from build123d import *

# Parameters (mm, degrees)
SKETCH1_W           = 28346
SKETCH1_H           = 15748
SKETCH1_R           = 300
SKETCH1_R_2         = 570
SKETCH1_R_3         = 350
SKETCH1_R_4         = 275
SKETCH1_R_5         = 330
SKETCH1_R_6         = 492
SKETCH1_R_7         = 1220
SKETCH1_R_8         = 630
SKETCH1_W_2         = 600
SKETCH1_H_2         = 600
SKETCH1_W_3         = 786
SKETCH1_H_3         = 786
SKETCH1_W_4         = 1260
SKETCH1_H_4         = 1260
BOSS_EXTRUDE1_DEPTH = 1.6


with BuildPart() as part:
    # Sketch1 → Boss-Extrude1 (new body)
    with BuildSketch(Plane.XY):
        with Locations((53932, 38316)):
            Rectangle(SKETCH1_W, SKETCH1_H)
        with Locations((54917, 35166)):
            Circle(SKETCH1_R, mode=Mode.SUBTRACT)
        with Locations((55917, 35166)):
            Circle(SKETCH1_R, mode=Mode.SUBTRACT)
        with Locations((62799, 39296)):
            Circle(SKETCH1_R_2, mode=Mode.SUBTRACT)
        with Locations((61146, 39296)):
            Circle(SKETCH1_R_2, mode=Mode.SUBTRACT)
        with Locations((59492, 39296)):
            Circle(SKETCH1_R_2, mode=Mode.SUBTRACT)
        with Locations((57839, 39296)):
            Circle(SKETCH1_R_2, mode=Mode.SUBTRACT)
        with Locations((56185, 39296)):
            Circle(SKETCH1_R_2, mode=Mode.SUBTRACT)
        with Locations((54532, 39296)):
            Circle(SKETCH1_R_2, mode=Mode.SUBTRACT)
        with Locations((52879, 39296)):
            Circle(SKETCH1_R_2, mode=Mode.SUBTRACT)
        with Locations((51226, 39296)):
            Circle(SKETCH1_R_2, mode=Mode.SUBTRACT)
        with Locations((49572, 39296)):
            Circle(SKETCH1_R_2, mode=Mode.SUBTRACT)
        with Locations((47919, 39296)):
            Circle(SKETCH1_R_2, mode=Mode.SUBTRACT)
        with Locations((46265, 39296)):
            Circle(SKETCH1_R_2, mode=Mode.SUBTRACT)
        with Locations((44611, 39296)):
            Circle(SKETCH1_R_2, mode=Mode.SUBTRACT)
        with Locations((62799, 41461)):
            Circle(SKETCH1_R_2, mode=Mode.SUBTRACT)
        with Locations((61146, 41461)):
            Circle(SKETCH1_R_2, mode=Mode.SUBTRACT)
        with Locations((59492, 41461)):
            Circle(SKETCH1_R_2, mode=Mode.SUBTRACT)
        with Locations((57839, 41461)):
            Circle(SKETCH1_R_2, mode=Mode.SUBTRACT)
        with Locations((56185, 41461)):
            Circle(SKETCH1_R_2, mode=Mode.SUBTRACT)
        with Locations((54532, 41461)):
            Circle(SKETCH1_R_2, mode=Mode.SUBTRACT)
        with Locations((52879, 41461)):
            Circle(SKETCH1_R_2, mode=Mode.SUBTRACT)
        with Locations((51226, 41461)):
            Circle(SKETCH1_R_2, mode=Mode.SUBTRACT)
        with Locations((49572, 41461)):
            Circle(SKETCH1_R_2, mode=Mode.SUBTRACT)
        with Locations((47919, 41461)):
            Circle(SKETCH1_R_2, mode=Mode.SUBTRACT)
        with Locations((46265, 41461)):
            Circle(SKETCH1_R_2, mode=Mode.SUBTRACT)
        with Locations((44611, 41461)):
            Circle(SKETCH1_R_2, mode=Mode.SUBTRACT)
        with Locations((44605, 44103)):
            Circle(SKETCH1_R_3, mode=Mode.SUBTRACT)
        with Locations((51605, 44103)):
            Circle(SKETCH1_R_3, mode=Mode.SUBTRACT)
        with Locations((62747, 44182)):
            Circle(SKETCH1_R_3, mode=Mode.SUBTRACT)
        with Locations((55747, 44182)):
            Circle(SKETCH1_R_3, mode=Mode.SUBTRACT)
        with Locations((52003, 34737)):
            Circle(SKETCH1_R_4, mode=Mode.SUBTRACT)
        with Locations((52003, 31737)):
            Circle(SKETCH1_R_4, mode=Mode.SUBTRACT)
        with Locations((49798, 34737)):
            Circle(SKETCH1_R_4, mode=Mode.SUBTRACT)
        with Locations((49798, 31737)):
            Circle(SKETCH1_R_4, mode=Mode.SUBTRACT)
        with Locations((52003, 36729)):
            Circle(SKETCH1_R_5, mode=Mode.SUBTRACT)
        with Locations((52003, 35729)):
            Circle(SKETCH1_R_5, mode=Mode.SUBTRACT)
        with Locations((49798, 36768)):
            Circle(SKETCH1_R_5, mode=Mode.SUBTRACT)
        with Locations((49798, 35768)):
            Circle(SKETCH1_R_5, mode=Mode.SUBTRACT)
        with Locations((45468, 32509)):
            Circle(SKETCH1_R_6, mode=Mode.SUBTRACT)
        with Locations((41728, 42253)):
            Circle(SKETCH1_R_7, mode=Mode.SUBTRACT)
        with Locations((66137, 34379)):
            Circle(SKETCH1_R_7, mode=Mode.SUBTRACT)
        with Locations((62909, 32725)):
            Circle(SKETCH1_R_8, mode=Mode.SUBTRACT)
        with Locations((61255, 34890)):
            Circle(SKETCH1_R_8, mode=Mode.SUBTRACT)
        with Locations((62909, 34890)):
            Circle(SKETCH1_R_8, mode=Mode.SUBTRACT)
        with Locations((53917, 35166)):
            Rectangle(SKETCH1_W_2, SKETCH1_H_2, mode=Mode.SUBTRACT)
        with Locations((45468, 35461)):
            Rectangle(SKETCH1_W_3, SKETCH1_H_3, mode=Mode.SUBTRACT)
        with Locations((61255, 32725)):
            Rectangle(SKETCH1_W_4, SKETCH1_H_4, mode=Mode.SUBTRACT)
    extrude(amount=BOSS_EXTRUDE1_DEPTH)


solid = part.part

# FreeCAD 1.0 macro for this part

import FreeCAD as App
import Part
import Sketcher
from FreeCAD import Vector


def add_polygon(sketch, points):
    """Adds a closed chain of lines whose ends are joined by coincident constraints."""
    first, n = sketch.GeometryCount, len(points)
    for a, b in zip(points, points[1:] + points[:1]):
        sketch.addGeometry(Part.LineSegment(App.Vector(*a, 0), App.Vector(*b, 0)), False)
    for i in range(n):
        sketch.addConstraint(Sketcher.Constraint("Coincident", first + i, 2, first + (i + 1) % n, 1))

doc = App.newDocument("Part")
params = doc.addObject("Spreadsheet::Sheet", "Params")
for row, (alias, value) in enumerate([
    ("sketch1_diameter", "984 mm"),
    ("sketch1_diameter2", "550 mm"),
    ("sketch1_diameter3", "660 mm"),
    ("sketch1_diameter4", "1260 mm"),
    ("sketch1_diameter5", "2440 mm"),
    ("pad1_length", "1.6 mm"),
], start=1):
    params.set(f"A{row}", alias)
    params.set(f"B{row}", "=" + value)
    params.setAlias(f"B{row}", alias)

body = doc.addObject("PartDesign::Body", "Body")

sketch1 = body.newObject("Sketcher::SketchObject", "Sketch")
sketch1.AttachmentSupport = (doc.getObject("XY_Plane"), [""])
sketch1.MapMode = "FlatFace"
add_polygon(sketch1, [(39759, 46190), (39759, 30442), (68105, 30442), (68105, 46190)])
sketch1.addGeometry(Part.Circle(Vector(45468, 32509, 0), Vector(0, 0, 1), 492), False)
sketch1.addGeometry(Part.Circle(Vector(49798, 31737, 0), Vector(0, 0, 1), 275), False)
sketch1.addGeometry(Part.Circle(Vector(52003, 31737, 0), Vector(0, 0, 1), 275), False)
add_polygon(sketch1, [(45861, 35068), (45075, 35068), (45075, 35854), (45861, 35854)])
sketch1.addGeometry(Part.Circle(Vector(49798, 34737, 0), Vector(0, 0, 1), 275), False)
sketch1.addGeometry(Part.Circle(Vector(49798, 35768, 0), Vector(0, 0, 1), 330), False)
sketch1.addGeometry(Part.Circle(Vector(52003, 34737, 0), Vector(0, 0, 1), 275), False)
add_polygon(sketch1, [(54217, 34866), (53617, 34866), (53617, 35466), (54217, 35466)])
sketch1.addGeometry(Part.Circle(Vector(52003, 35729, 0), Vector(0, 0, 1), 330), False)
sketch1.addGeometry(Part.Circle(Vector(49798, 36768, 0), Vector(0, 0, 1), 330), False)
sketch1.addGeometry(Part.Circle(Vector(52003, 36729, 0), Vector(0, 0, 1), 330), False)
add_polygon(sketch1, [(61885, 32095), (60625, 32095), (60625, 33355), (61885, 33355)])
sketch1.addGeometry(Part.Circle(Vector(62909, 32725, 0), Vector(0, 0, 1), 630), False)
sketch1.addGeometry(Part.Circle(Vector(66137, 34379, 0), Vector(0, 0, 1), 1220), False)
sketch1.addGeometry(Part.Circle(Vector(54917, 35166, 0), Vector(0, 0, 1), 300), False)
sketch1.addGeometry(Part.Circle(Vector(55917, 35166, 0), Vector(0, 0, 1), 300), False)
sketch1.addGeometry(Part.Circle(Vector(61255, 34890, 0), Vector(0, 0, 1), 630), False)
sketch1.addGeometry(Part.Circle(Vector(62909, 34890, 0), Vector(0, 0, 1), 630), False)
sketch1.addGeometry(Part.Circle(Vector(44611, 39296, 0), Vector(0, 0, 1), 570), False)
sketch1.addGeometry(Part.Circle(Vector(46265, 39296, 0), Vector(0, 0, 1), 570), False)
sketch1.addGeometry(Part.Circle(Vector(47919, 39296, 0), Vector(0, 0, 1), 570), False)
sketch1.addGeometry(Part.Circle(Vector(49572, 39296, 0), Vector(0, 0, 1), 570), False)
sketch1.addGeometry(Part.Circle(Vector(51226, 39296, 0), Vector(0, 0, 1), 570), False)
sketch1.addGeometry(Part.Circle(Vector(52879, 39296, 0), Vector(0, 0, 1), 570), False)
sketch1.addGeometry(Part.Circle(Vector(41728, 42253, 0), Vector(0, 0, 1), 1220), False)
sketch1.addGeometry(Part.Circle(Vector(44611, 41461, 0), Vector(0, 0, 1), 570), False)
sketch1.addGeometry(Part.Circle(Vector(46265, 41461, 0), Vector(0, 0, 1), 570), False)
sketch1.addGeometry(Part.Circle(Vector(44605, 44103, 0), Vector(0, 0, 1), 350), False)
sketch1.addGeometry(Part.Circle(Vector(47919, 41461, 0), Vector(0, 0, 1), 570), False)
sketch1.addGeometry(Part.Circle(Vector(49572, 41461, 0), Vector(0, 0, 1), 570), False)
sketch1.addGeometry(Part.Circle(Vector(51226, 41461, 0), Vector(0, 0, 1), 570), False)
sketch1.addGeometry(Part.Circle(Vector(52879, 41461, 0), Vector(0, 0, 1), 570), False)
sketch1.addGeometry(Part.Circle(Vector(51605, 44103, 0), Vector(0, 0, 1), 350), False)
sketch1.addGeometry(Part.Circle(Vector(54532, 39296, 0), Vector(0, 0, 1), 570), False)
sketch1.addGeometry(Part.Circle(Vector(56185, 39296, 0), Vector(0, 0, 1), 570), False)
sketch1.addGeometry(Part.Circle(Vector(57839, 39296, 0), Vector(0, 0, 1), 570), False)
sketch1.addGeometry(Part.Circle(Vector(59492, 39296, 0), Vector(0, 0, 1), 570), False)
sketch1.addGeometry(Part.Circle(Vector(61146, 39296, 0), Vector(0, 0, 1), 570), False)
sketch1.addGeometry(Part.Circle(Vector(62799, 39296, 0), Vector(0, 0, 1), 570), False)
sketch1.addGeometry(Part.Circle(Vector(54532, 41461, 0), Vector(0, 0, 1), 570), False)
sketch1.addGeometry(Part.Circle(Vector(56185, 41461, 0), Vector(0, 0, 1), 570), False)
sketch1.addGeometry(Part.Circle(Vector(57839, 41461, 0), Vector(0, 0, 1), 570), False)
sketch1.addGeometry(Part.Circle(Vector(59492, 41461, 0), Vector(0, 0, 1), 570), False)
sketch1.addGeometry(Part.Circle(Vector(55747, 44182, 0), Vector(0, 0, 1), 350), False)
sketch1.addGeometry(Part.Circle(Vector(61146, 41461, 0), Vector(0, 0, 1), 570), False)
sketch1.addGeometry(Part.Circle(Vector(62799, 41461, 0), Vector(0, 0, 1), 570), False)
sketch1.addGeometry(Part.Circle(Vector(62747, 44182, 0), Vector(0, 0, 1), 350), False)
sketch1.addConstraint([
    Sketcher.Constraint("Vertical", 0),
    Sketcher.Constraint("Horizontal", 1),
    Sketcher.Constraint("Vertical", 2),
    Sketcher.Constraint("Horizontal", 3),
    Sketcher.Constraint("Horizontal", 7),
    Sketcher.Constraint("Vertical", 8),
    Sketcher.Constraint("Horizontal", 9),
    Sketcher.Constraint("Vertical", 10),
    Sketcher.Constraint("Horizontal", 14),
    Sketcher.Constraint("Vertical", 15),
    Sketcher.Constraint("Horizontal", 16),
    Sketcher.Constraint("Vertical", 17),
    Sketcher.Constraint("Horizontal", 21),
    Sketcher.Constraint("Vertical", 22),
    Sketcher.Constraint("Horizontal", 23),
    Sketcher.Constraint("Vertical", 24),
    Sketcher.Constraint("Equal", 5, 6),
    Sketcher.Constraint("Equal", 6, 11),
    Sketcher.Constraint("Equal", 11, 13),
    Sketcher.Constraint("Equal", 12, 18),
    Sketcher.Constraint("Equal", 18, 19),
    Sketcher.Constraint("Equal", 19, 20),
    Sketcher.Constraint("Equal", 27, 28),
    Sketcher.Constraint("Equal", 25, 29),
    Sketcher.Constraint("Equal", 29, 30),
    Sketcher.Constraint("Equal", 31, 32),
    Sketcher.Constraint("Equal", 32, 33),
    Sketcher.Constraint("Equal", 33, 34),
    Sketcher.Constraint("Equal", 34, 35),
    Sketcher.Constraint("Equal", 35, 36),
    Sketcher.Constraint("Equal", 26, 37),
    Sketcher.Constraint("Equal", 36, 38),
    Sketcher.Constraint("Equal", 38, 39),
    Sketcher.Constraint("Equal", 39, 41),
    Sketcher.Constraint("Equal", 41, 42),
    Sketcher.Constraint("Equal", 42, 43),
    Sketcher.Constraint("Equal", 43, 44),
    Sketcher.Constraint("Equal", 40, 45),
    Sketcher.Constraint("Equal", 44, 46),
    Sketcher.Constraint("Equal", 46, 47),
    Sketcher.Constraint("Equal", 47, 48),
    Sketcher.Constraint("Equal", 48, 49),
    Sketcher.Constraint("Equal", 49, 50),
    Sketcher.Constraint("Equal", 50, 51),
    Sketcher.Constraint("Equal", 51, 52),
    Sketcher.Constraint("Equal", 52, 53),
    Sketcher.Constraint("Equal", 53, 54),
    Sketcher.Constraint("Equal", 54, 55),
    Sketcher.Constraint("Equal", 45, 56),
    Sketcher.Constraint("Equal", 55, 57),
    Sketcher.Constraint("Equal", 57, 58),
    Sketcher.Constraint("Equal", 56, 59),
    Sketcher.Constraint("Horizontal", 5, 3, 6, 3),
    Sketcher.Constraint("Horizontal", 11, 3, 13, 3),
    Sketcher.Constraint("Horizontal", 27, 3, 28, 3),
    Sketcher.Constraint("Horizontal", 29, 3, 30, 3),
    Sketcher.Constraint("Horizontal", 31, 3, 32, 3),
    Sketcher.Constraint("Horizontal", 32, 3, 33, 3),
    Sketcher.Constraint("Horizontal", 33, 3, 34, 3),
    Sketcher.Constraint("Horizontal", 34, 3, 35, 3),
    Sketcher.Constraint("Horizontal", 35, 3, 36, 3),
    Sketcher.Constraint("Horizontal", 38, 3, 39, 3),
    Sketcher.Constraint("Horizontal", 39, 3, 41, 3),
    Sketcher.Constraint("Horizontal", 41, 3, 42, 3),
    Sketcher.Constraint("Horizontal", 42, 3, 43, 3),
    Sketcher.Constraint("Horizontal", 43, 3, 44, 3),
    Sketcher.Constraint("Horizontal", 40, 3, 45, 3),
    Sketcher.Constraint("Horizontal", 36, 3, 46, 3),
    Sketcher.Constraint("Horizontal", 46, 3, 47, 3),
    Sketcher.Constraint("Horizontal", 47, 3, 48, 3),
    Sketcher.Constraint("Horizontal", 48, 3, 49, 3),
    Sketcher.Constraint("Horizontal", 49, 3, 50, 3),
    Sketcher.Constraint("Horizontal", 50, 3, 51, 3),
    Sketcher.Constraint("Horizontal", 44, 3, 52, 3),
    Sketcher.Constraint("Horizontal", 52, 3, 53, 3),
    Sketcher.Constraint("Horizontal", 53, 3, 54, 3),
    Sketcher.Constraint("Horizontal", 54, 3, 55, 3),
    Sketcher.Constraint("Horizontal", 55, 3, 57, 3),
    Sketcher.Constraint("Horizontal", 57, 3, 58, 3),
    Sketcher.Constraint("Horizontal", 56, 3, 59, 3),
    Sketcher.Constraint("Vertical", 5, 3, 11, 3),
    Sketcher.Constraint("Vertical", 11, 3, 12, 3),
    Sketcher.Constraint("Vertical", 6, 3, 13, 3),
    Sketcher.Constraint("Vertical", 13, 3, 18, 3),
    Sketcher.Constraint("Vertical", 12, 3, 19, 3),
    Sketcher.Constraint("Vertical", 18, 3, 20, 3),
    Sketcher.Constraint("Vertical", 25, 3, 30, 3),
    Sketcher.Constraint("Vertical", 31, 3, 38, 3),
    Sketcher.Constraint("Vertical", 32, 3, 39, 3),
    Sketcher.Constraint("Vertical", 33, 3, 41, 3),
    Sketcher.Constraint("Vertical", 34, 3, 42, 3),
    Sketcher.Constraint("Vertical", 35, 3, 43, 3),
    Sketcher.Constraint("Vertical", 36, 3, 44, 3),
    Sketcher.Constraint("Vertical", 46, 3, 52, 3),
    Sketcher.Constraint("Vertical", 47, 3, 53, 3),
    Sketcher.Constraint("Vertical", 48, 3, 54, 3),
    Sketcher.Constraint("Vertical", 49, 3, 55, 3),
    Sketcher.Constraint("Vertical", 50, 3, 57, 3),
    Sketcher.Constraint("Vertical", 51, 3, 58, 3),
    Sketcher.Constraint("Equal", 9, 8),
    Sketcher.Constraint("Equal", 16, 15),
    Sketcher.Constraint("Equal", 23, 22),
    Sketcher.Constraint("Diameter", 4, 984.0),
    Sketcher.Constraint("Diameter", 5, 550.0),
    Sketcher.Constraint("Diameter", 12, 660.0),
    Sketcher.Constraint("Diameter", 25, 1260.0),
    Sketcher.Constraint("Diameter", 26, 2440.0),
    Sketcher.Constraint("Diameter", 27, 600.0),
    Sketcher.Constraint("Diameter", 31, 1140.0),
    Sketcher.Constraint("Diameter", 40, 700.0),
    Sketcher.Constraint("DistanceX", 1, 1, 1, 2, 28346.0),
    Sketcher.Constraint("DistanceX", 7, 2, 7, 1, 786.0),
    Sketcher.Constraint("DistanceX", 14, 2, 14, 1, 600.0),
    Sketcher.Constraint("DistanceX", 21, 2, 21, 1, 1260.0),
    Sketcher.Constraint("DistanceY", 0, 2, 0, 1, 15748.0),
    Sketcher.Constraint("DistanceX", -1, 1, 4, 3, 45468.0),
    Sketcher.Constraint("DistanceY", -1, 1, 4, 3, 32509.0),
    Sketcher.Constraint("DistanceX", -1, 1, 5, 3, 49798.0),
    Sketcher.Constraint("DistanceY", -1, 1, 5, 3, 31737.0),
    Sketcher.Constraint("DistanceX", -1, 1, 6, 3, 52003.0),
    Sketcher.Constraint("DistanceY", -1, 1, 11, 3, 34737.0),
    Sketcher.Constraint("DistanceY", -1, 1, 12, 3, 35768.0),
    Sketcher.Constraint("DistanceY", -1, 1, 18, 3, 35729.0),
    Sketcher.Constraint("DistanceY", -1, 1, 19, 3, 36768.0),
    Sketcher.Constraint("DistanceY", -1, 1, 20, 3, 36729.0),
    Sketcher.Constraint("DistanceX", -1, 1, 25, 3, 62909.0),
    Sketcher.Constraint("DistanceY", -1, 1, 25, 3, 32725.0),
    Sketcher.Constraint("DistanceX", -1, 1, 26, 3, 66137.0),
    Sketcher.Constraint("DistanceY", -1, 1, 26, 3, 34379.0),
    Sketcher.Constraint("DistanceX", -1, 1, 27, 3, 54917.0),
    Sketcher.Constraint("DistanceY", -1, 1, 27, 3, 35166.0),
    Sketcher.Constraint("DistanceX", -1, 1, 28, 3, 55917.0),
    Sketcher.Constraint("DistanceX", -1, 1, 29, 3, 61255.0),
    Sketcher.Constraint("DistanceY", -1, 1, 29, 3, 34890.0),
    Sketcher.Constraint("DistanceX", -1, 1, 31, 3, 44611.0),
    Sketcher.Constraint("DistanceY", -1, 1, 31, 3, 39296.0),
    Sketcher.Constraint("DistanceX", -1, 1, 32, 3, 46265.0),
    Sketcher.Constraint("DistanceX", -1, 1, 33, 3, 47919.0),
    Sketcher.Constraint("DistanceX", -1, 1, 34, 3, 49572.0),
    Sketcher.Constraint("DistanceX", -1, 1, 35, 3, 51226.0),
    Sketcher.Constraint("DistanceX", -1, 1, 36, 3, 52879.0),
    Sketcher.Constraint("DistanceX", -1, 1, 37, 3, 41728.0),
    Sketcher.Constraint("DistanceY", -1, 1, 37, 3, 42253.0),
    Sketcher.Constraint("DistanceY", -1, 1, 38, 3, 41461.0),
    Sketcher.Constraint("DistanceX", -1, 1, 40, 3, 44605.0),
    Sketcher.Constraint("DistanceY", -1, 1, 40, 3, 44103.0),
    Sketcher.Constraint("DistanceX", -1, 1, 45, 3, 51605.0),
    Sketcher.Constraint("DistanceX", -1, 1, 46, 3, 54532.0),
    Sketcher.Constraint("DistanceX", -1, 1, 47, 3, 56185.0),
    Sketcher.Constraint("DistanceX", -1, 1, 48, 3, 57839.0),
    Sketcher.Constraint("DistanceX", -1, 1, 49, 3, 59492.0),
    Sketcher.Constraint("DistanceX", -1, 1, 50, 3, 61146.0),
    Sketcher.Constraint("DistanceX", -1, 1, 51, 3, 62799.0),
    Sketcher.Constraint("DistanceX", -1, 1, 56, 3, 55747.0),
    Sketcher.Constraint("DistanceY", -1, 1, 56, 3, 44182.0),
    Sketcher.Constraint("DistanceX", -1, 1, 59, 3, 62747.0),
    Sketcher.Constraint("DistanceX", -1, 1, 0, 2, 39759.0),
    Sketcher.Constraint("DistanceY", -1, 1, 0, 2, 30442.0),
    Sketcher.Constraint("DistanceX", -1, 1, 7, 2, 45075.0),
    Sketcher.Constraint("DistanceY", -1, 1, 7, 2, 35068.0),
    Sketcher.Constraint("DistanceX", -1, 1, 14, 2, 53617.0),
    Sketcher.Constraint("DistanceY", -1, 1, 14, 2, 34866.0),
    Sketcher.Constraint("DistanceX", -1, 1, 21, 2, 60625.0),
    Sketcher.Constraint("DistanceY", -1, 1, 21, 2, 32095.0),
])
sketch1.setExpression("Constraints[118]", "Params.sketch1_diameter")
sketch1.setExpression("Constraints[119]", "Params.sketch1_diameter2")
sketch1.setExpression("Constraints[120]", "Params.sketch1_diameter3")
sketch1.setExpression("Constraints[121]", "Params.sketch1_diameter4")
sketch1.setExpression("Constraints[122]", "Params.sketch1_diameter5")
pad1 = body.newObject("PartDesign::Pad", "Pad")
pad1.Profile = sketch1
pad1.setExpression("Length", "Params.pad1_length")

doc.recompute()
